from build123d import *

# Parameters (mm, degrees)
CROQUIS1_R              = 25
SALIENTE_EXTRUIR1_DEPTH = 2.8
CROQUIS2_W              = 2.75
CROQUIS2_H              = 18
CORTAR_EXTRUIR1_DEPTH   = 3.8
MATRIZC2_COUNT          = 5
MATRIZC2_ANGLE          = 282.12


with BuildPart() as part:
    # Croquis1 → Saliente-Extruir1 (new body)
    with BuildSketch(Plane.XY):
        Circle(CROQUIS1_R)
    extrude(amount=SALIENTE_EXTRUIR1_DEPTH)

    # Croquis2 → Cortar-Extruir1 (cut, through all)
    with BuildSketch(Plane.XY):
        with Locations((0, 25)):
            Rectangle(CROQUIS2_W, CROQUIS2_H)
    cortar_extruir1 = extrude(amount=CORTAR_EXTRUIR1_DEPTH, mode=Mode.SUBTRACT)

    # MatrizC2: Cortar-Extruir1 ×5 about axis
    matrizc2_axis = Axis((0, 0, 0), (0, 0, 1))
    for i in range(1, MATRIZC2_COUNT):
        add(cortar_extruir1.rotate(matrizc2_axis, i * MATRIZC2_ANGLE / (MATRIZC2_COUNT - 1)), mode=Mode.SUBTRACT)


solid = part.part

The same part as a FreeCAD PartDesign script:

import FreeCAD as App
import Part
import Sketcher

V = App.Vector
Q = App.Units.Quantity


def add_polygon(sketch, points):
    """Adds a closed chain of lines whose ends are joined by coincident constraints."""
    first, n = sketch.GeometryCount, len(points)
    for a, b in zip(points, points[1:] + points[:1]):
        sketch.addGeometry(Part.LineSegment(App.Vector(*a, 0), App.Vector(*b, 0)), False)
    for i in range(n):
        sketch.addConstraint(Sketcher.Constraint("Coincident", first + i, 2, first + (i + 1) % n, 1))

doc = App.newDocument("Part")
body = doc.addObject("PartDesign::Body", "Body")

sketch1 = doc.addObject("Sketcher::SketchObject", "Sketch")
body.addObject(sketch1)
sketch1.AttachmentSupport = (doc.XY_Plane, [""])
sketch1.MapMode = "FlatFace"
sketch1.addGeometry(Part.Circle(V(0, 0, 0), V(0, 0, 1), 25), False)
sketch1.addConstraint(Sketcher.Constraint("Coincident", 0, 3, -1, 1))
sketch1.addConstraint(Sketcher.Constraint("Diameter", 0, Q("50 mm")))
pad1 = doc.addObject("PartDesign::Pad", "Pad")
body.addObject(pad1)
pad1.Profile = sketch1
pad1.Length = 2.8

sketch2 = doc.addObject("Sketcher::SketchObject", "Sketch001")
body.addObject(sketch2)
sketch2.AttachmentSupport = (doc.XY_Plane, [""])
sketch2.MapMode = "FlatFace"
add_polygon(sketch2, [(-1.4, 34), (-1.4, 16), (1.4, 16), (1.4, 34)])
sketch2.addConstraint(Sketcher.Constraint("Vertical", 0))
sketch2.addConstraint(Sketcher.Constraint("Horizontal", 1))
sketch2.addConstraint(Sketcher.Constraint("Vertical", 2))
sketch2.addConstraint(Sketcher.Constraint("Horizontal", 3))
sketch2.addConstraint(Sketcher.Constraint("DistanceY", 0, 2, 0, 1, Q("18 mm")))
sketch2.addConstraint(Sketcher.Constraint("DistanceY", -1, 1, 0, 2, Q("16 mm")))
sketch2.addConstraint(Sketcher.Constraint("DistanceX", 1, 1, 1, 2, Q("2.75 mm")))
sketch2.addConstraint(Sketcher.Constraint("DistanceX", 0, 2, -1, 1, Q("1.375 mm")))
pocket1 = doc.addObject("PartDesign::Pocket", "Pocket")
body.addObject(pocket1)
pocket1.Profile = sketch2
pocket1.Type = "ThroughAll"
pocket1.Reversed = True
doc.recompute()

polarpattern = doc.addObject("PartDesign::PolarPattern", "PolarPattern")
body.addObject(polarpattern)
polarpattern.Originals = [pocket1]
polarpattern.Axis = (doc.Z_Axis, [""])
polarpattern.Angle = 282.12
polarpattern.Occurrences = 5
body.Tip = polarpattern

doc.recompute()
